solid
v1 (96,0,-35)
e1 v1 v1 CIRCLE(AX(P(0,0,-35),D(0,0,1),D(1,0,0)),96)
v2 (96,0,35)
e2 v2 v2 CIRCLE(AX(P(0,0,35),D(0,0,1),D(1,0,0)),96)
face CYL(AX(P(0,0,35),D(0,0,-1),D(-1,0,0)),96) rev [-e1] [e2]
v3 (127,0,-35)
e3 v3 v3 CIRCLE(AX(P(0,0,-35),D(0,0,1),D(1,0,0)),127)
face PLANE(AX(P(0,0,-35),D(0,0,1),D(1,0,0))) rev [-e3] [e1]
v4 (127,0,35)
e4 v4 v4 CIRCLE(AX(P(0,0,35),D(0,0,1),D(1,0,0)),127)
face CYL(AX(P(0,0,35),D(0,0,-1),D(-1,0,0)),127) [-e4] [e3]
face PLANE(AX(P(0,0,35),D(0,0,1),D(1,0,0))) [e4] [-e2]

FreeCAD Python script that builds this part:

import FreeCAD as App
import Part
import Sketcher

V = App.Vector

doc = App.newDocument("Part")
params = doc.addObject("Spreadsheet::Sheet", "Params")
for row, (alias, value) in enumerate([
    ("sketch1_diameter", "254 mm"),
    ("sketch1_diameter2", "192 mm"),
    ("pad1_length", "70 mm"),
], start=1):
    params.set(f"A{row}", alias)
    params.set(f"B{row}", "=" + value)
    params.setAlias(f"B{row}", alias)

body = doc.addObject("PartDesign::Body", "Body")

sketch1 = body.newObject("Sketcher::SketchObject", "Sketch")
sketch1.AttachmentSupport = (doc.getObject("XY_Plane"), [""])
sketch1.MapMode = "FlatFace"
sketch1.AttachmentOffset = App.Placement(V(0, 0, -35), App.Rotation())
sketch1.addGeometry(Part.Circle(V(0, 0, 0), V(0, 0, 1), 127), False)
sketch1.addGeometry(Part.Circle(V(0, 0, 0), V(0, 0, 1), 96), False)
sketch1.addConstraint(Sketcher.Constraint("Coincident", 0, 3, -1, 1))
sketch1.addConstraint(Sketcher.Constraint("Coincident", 1, 3, -1, 1))
sketch1.addConstraint(Sketcher.Constraint("Diameter", 0, 254.0))
sketch1.addConstraint(Sketcher.Constraint("Diameter", 1, 192.0))
sketch1.setExpression("Constraints[2]", "Params.sketch1_diameter")
sketch1.setExpression("Constraints[3]", "Params.sketch1_diameter2")
pad1 = body.newObject("PartDesign::Pad", "Pad")
pad1.Profile = sketch1
pad1.setExpression("Length", "Params.pad1_length")

doc.recompute()
